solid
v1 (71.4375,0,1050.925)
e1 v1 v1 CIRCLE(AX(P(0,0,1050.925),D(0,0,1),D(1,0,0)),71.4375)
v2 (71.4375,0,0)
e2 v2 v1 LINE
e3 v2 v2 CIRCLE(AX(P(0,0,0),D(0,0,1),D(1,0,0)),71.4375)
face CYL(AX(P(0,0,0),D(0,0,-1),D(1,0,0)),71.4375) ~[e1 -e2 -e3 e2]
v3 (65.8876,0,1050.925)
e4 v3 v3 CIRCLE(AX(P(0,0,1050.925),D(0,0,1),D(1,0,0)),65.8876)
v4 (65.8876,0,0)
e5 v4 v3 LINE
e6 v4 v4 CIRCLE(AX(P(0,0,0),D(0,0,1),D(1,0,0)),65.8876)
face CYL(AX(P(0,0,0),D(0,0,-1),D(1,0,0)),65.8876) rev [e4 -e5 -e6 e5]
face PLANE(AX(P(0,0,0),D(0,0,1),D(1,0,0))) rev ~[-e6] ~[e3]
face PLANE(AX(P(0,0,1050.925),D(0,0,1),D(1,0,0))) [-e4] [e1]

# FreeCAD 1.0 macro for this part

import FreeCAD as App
import Part
import Sketcher

V = App.Vector
Q = App.Units.Quantity

doc = App.newDocument("Part")
body = doc.addObject("PartDesign::Body", "Body")

sketch1 = body.newObject("Sketcher::SketchObject", "Sketch")
sketch1.AttachmentSupport = (doc.getObject("XY_Plane"), [""])
sketch1.MapMode = "FlatFace"
sketch1.addGeometry([
    Part.Circle(V(0, 0, 0), V(0, 0, 1), 71),
    Part.Circle(V(0, 0, 0), V(0, 0, 1), 66),
], False)
sketch1.addConstraint([
    Sketcher.Constraint("Coincident", 0, 3, -1, 1),
    Sketcher.Constraint("Coincident", 1, 3, -1, 1),
    Sketcher.Constraint("Diameter", 0, Q("5.625 in")),
    Sketcher.Constraint("Diameter", 1, Q("5.188 in")),
])
pad1 = body.newObject("PartDesign::Pad", "Pad")
pad1.Profile = sketch1
pad1.Length = Q("41.375 in")

doc.recompute()
